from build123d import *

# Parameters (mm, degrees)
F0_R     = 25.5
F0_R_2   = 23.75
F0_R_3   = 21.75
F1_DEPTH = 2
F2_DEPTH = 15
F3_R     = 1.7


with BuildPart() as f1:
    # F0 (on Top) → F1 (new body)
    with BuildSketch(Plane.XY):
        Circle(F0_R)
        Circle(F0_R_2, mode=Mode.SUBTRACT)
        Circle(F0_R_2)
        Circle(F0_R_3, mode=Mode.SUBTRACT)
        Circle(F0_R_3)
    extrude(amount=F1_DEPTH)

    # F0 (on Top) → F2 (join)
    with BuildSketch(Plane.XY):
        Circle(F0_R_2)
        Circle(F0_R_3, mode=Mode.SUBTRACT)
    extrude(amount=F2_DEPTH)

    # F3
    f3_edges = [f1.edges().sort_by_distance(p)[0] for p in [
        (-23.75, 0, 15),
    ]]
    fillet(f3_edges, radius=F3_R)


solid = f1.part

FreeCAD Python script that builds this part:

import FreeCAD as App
import Part
import Sketcher
from FreeCAD import Vector
Q = App.Units.Quantity


def edges_at(feature, points):
    """Names of the edges that pass closest to the given points."""
    edges = feature.Shape.Edges
    near = lambda p: min(range(len(edges)), key=lambda i: edges[i].distToShape(Part.Vertex(*p))[0])
    return sorted({f"Edge{near(p) + 1}" for p in points})

doc = App.newDocument("Part")
body = doc.addObject("PartDesign::Body", "Body")

sketch1 = body.newObject("Sketcher::SketchObject", "Sketch")
sketch1.AttachmentSupport = (doc.getObject("XY_Plane"), [""])
sketch1.MapMode = "FlatFace"
sketch1.addGeometry(Part.Circle(Vector(0, 0, 0), Vector(0, 0, 1), 26), False)
sketch1.addConstraint([
    Sketcher.Constraint("Coincident", 0, 3, -1, 1),
    Sketcher.Constraint("Diameter", 0, Q("51 mm")),
])
pad1 = body.newObject("PartDesign::Pad", "Pad")
pad1.Profile = sketch1
pad1.Length = 2

sketch2 = body.newObject("Sketcher::SketchObject", "Sketch001")
sketch2.AttachmentSupport = (doc.getObject("XY_Plane"), [""])
sketch2.MapMode = "FlatFace"
sketch2.addGeometry([
    Part.Circle(Vector(0, 0, 0), Vector(0, 0, 1), 24),
    Part.Circle(Vector(0, 0, 0), Vector(0, 0, 1), 22),
], False)
sketch2.addConstraint([
    Sketcher.Constraint("Coincident", 0, 3, -1, 1),
    Sketcher.Constraint("Coincident", 1, 3, -1, 1),
    Sketcher.Constraint("Diameter", 0, Q("47.5 mm")),
    Sketcher.Constraint("Diameter", 1, Q("43.5 mm")),
])
pad2 = body.newObject("PartDesign::Pad", "Pad001")
pad2.Profile = sketch2
pad2.Length = 15
doc.recompute()

fillet = body.newObject("PartDesign::Fillet", "Fillet")
fillet.Base = (pad2, edges_at(pad2, [(-23.75, 0, 15)]))
fillet.Radius = 1.7

doc.recompute()
